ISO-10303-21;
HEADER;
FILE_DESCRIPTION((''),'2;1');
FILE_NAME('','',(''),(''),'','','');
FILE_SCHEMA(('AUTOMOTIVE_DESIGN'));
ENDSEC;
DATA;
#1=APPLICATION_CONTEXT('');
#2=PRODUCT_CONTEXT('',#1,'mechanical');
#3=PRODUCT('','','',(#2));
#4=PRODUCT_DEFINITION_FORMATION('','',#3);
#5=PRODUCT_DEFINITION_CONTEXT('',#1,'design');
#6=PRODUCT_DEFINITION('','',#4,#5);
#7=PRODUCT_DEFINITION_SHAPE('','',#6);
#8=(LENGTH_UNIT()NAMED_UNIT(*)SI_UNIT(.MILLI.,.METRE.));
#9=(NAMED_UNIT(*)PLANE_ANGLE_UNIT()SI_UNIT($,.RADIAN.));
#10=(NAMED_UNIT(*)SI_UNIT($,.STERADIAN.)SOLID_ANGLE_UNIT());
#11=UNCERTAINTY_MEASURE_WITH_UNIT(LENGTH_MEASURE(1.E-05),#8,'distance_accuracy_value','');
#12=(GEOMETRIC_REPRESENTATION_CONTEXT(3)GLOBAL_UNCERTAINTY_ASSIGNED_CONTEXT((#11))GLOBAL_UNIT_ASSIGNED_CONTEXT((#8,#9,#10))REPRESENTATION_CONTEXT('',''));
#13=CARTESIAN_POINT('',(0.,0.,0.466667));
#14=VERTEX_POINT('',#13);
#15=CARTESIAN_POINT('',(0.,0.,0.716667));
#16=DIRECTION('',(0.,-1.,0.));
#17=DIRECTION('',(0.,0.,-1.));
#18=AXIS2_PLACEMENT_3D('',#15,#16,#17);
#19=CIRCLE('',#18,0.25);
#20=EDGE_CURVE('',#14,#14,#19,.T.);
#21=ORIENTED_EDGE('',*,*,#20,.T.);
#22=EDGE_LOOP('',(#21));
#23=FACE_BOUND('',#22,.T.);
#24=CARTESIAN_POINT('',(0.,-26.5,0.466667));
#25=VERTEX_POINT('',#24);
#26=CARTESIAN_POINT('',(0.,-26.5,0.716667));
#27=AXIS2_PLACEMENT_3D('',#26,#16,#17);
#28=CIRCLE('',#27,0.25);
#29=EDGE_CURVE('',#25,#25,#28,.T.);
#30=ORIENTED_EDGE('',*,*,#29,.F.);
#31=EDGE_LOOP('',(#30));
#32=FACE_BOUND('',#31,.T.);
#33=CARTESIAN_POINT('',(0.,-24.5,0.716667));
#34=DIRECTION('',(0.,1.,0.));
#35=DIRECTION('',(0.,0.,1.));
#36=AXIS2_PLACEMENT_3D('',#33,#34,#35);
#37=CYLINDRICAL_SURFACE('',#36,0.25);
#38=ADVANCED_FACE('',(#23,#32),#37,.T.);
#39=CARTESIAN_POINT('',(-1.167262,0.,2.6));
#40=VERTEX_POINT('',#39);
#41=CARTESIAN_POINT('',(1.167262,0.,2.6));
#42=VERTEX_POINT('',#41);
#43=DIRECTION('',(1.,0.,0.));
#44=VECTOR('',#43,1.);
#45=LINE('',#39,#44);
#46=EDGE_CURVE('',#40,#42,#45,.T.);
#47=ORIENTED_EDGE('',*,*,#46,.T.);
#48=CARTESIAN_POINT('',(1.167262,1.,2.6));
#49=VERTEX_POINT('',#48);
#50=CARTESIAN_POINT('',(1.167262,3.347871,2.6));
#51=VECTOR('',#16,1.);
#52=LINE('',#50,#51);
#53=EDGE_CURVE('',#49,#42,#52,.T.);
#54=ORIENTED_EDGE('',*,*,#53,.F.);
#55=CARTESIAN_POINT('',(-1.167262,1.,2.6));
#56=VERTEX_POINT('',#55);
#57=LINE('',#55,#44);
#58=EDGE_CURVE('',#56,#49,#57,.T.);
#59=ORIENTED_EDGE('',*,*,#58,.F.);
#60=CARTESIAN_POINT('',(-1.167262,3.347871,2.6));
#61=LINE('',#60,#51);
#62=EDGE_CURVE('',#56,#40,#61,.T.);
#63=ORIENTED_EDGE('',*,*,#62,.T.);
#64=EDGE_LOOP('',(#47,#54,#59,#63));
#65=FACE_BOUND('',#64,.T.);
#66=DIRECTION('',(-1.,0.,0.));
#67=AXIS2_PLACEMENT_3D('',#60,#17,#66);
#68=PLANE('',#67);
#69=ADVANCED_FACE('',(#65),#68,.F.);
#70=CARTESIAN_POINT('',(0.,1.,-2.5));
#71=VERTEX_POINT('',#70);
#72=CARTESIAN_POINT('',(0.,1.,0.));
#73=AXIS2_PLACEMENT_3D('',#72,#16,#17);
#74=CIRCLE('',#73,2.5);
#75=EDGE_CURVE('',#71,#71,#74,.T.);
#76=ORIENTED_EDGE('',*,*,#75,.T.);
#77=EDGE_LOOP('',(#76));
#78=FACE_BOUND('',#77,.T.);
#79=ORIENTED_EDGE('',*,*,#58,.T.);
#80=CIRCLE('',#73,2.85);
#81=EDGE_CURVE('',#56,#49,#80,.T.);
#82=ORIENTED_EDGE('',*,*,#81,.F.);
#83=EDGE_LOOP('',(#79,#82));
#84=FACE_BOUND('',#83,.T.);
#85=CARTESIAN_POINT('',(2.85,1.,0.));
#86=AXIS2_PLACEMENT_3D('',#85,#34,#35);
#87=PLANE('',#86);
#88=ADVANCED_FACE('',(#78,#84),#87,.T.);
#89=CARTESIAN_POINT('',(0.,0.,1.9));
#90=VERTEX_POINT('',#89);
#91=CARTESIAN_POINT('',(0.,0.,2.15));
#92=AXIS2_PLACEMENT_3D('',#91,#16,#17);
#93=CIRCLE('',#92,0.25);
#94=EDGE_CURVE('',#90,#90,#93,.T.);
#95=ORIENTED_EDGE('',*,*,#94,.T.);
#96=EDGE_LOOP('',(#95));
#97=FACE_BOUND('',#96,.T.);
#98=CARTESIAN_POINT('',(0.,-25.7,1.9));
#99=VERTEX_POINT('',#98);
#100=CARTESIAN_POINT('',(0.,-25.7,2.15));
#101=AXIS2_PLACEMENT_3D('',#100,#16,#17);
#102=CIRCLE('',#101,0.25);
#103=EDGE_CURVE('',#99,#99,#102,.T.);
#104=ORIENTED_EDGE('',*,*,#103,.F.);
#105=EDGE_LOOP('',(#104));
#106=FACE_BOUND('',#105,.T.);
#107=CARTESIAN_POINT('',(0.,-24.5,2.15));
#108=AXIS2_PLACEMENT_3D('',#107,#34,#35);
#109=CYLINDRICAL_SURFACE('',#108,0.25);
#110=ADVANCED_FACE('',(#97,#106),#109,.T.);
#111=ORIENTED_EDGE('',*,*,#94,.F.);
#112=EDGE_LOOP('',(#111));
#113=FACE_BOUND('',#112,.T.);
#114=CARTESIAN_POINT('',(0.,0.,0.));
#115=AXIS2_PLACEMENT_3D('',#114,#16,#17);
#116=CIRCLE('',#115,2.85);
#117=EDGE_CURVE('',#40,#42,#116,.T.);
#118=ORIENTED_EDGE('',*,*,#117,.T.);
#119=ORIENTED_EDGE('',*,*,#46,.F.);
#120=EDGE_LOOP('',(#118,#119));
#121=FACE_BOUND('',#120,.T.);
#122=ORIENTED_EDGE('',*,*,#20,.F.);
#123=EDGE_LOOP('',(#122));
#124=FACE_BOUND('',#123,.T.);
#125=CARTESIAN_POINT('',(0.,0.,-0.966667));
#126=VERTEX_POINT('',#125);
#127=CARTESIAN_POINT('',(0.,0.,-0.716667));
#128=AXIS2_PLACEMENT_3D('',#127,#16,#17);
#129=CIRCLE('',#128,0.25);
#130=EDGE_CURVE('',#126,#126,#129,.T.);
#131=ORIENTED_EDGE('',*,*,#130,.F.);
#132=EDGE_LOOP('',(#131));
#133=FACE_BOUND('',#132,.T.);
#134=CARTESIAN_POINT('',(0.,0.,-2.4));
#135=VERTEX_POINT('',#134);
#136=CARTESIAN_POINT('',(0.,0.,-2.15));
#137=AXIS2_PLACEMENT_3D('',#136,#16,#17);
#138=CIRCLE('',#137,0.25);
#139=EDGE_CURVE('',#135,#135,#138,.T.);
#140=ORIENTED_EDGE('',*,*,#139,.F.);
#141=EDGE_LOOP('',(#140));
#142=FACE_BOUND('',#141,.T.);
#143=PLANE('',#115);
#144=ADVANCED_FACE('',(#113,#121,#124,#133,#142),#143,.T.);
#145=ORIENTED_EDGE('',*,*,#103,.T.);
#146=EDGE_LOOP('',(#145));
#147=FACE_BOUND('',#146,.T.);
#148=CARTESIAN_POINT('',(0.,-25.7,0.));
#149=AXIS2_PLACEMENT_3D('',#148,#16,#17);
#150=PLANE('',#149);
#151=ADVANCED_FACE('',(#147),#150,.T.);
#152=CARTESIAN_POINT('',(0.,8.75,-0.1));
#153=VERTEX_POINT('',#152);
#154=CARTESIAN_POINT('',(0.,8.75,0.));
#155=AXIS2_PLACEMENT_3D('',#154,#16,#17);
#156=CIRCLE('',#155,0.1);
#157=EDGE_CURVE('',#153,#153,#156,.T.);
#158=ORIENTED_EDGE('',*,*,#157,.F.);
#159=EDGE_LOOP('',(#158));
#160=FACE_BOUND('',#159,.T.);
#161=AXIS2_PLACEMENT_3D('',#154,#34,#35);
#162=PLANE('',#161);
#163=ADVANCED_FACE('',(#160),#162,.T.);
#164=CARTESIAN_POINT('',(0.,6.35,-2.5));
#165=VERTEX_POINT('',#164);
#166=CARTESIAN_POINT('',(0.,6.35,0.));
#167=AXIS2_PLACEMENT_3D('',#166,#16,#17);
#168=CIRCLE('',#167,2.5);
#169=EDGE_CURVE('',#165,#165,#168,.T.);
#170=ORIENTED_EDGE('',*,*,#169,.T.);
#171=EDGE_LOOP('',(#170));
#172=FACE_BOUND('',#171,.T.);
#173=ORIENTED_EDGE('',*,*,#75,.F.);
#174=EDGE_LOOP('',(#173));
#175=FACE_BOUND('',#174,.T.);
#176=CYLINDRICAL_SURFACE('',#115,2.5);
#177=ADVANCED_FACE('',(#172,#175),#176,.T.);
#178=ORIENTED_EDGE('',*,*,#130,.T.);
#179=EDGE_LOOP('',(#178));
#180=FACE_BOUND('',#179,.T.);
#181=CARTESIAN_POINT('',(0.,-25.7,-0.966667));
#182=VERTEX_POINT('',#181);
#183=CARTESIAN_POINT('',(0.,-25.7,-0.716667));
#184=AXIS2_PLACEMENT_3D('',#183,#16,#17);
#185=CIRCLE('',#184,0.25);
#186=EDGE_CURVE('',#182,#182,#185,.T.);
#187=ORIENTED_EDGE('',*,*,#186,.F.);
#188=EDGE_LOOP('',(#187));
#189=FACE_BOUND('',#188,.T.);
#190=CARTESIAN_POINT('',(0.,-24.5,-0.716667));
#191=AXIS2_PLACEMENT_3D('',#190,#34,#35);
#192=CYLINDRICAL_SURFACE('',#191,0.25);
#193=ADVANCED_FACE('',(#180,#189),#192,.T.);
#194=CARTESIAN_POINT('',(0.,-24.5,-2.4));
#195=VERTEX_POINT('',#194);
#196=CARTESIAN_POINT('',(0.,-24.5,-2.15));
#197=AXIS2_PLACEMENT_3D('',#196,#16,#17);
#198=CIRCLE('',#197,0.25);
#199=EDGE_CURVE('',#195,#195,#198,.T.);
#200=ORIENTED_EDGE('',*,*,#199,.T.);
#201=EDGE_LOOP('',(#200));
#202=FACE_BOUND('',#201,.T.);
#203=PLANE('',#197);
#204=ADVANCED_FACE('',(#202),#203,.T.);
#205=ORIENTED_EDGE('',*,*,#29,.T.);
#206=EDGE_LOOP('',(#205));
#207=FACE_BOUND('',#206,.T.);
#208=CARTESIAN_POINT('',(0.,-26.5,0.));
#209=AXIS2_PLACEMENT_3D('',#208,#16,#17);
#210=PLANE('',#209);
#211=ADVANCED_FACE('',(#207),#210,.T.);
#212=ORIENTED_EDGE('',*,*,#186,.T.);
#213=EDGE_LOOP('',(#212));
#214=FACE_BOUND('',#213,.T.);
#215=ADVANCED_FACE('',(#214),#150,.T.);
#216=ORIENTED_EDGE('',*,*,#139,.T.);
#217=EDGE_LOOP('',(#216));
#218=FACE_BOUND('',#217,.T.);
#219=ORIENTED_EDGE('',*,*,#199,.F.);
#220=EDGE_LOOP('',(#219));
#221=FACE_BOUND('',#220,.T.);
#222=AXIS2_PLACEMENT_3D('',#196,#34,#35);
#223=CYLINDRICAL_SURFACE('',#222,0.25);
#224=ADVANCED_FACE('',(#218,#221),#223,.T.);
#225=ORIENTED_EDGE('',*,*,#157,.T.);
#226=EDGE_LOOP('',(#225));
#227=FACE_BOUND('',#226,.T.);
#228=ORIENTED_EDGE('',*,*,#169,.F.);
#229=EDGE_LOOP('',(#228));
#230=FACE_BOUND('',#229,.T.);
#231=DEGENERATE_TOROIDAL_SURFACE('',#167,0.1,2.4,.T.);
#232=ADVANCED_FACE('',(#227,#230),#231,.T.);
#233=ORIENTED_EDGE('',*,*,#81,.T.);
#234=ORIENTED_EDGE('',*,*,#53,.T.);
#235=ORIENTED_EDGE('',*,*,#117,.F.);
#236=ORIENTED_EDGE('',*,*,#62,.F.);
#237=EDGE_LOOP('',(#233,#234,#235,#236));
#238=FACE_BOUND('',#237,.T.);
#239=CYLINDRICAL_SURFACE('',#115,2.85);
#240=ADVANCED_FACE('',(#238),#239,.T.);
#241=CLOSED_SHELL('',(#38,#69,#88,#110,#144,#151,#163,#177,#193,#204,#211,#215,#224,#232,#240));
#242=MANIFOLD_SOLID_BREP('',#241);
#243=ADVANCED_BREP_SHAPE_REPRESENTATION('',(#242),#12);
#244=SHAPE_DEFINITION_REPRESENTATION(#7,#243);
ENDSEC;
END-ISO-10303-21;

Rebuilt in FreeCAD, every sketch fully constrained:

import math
import FreeCAD as App
import Part
import Sketcher

doc = App.newDocument("Part")
body = doc.addObject("PartDesign::Body", "Body")

sketch1 = body.newObject("Sketcher::SketchObject", "Sketch")
sketch1.AttachmentSupport = (doc.getObject("XY_Plane"), [""])
sketch1.MapMode = "FlatFace"
sketch1.addGeometry([
    Part.LineSegment(App.Vector(0, 8.75, 0), App.Vector(0, 0, 0)),
    Part.LineSegment(App.Vector(0, 0, 0), App.Vector(2.85, 0, 0)),
    Part.LineSegment(App.Vector(2.85, 0, 0), App.Vector(2.85, 1, 0)),
    Part.LineSegment(App.Vector(2.85, 1, 0), App.Vector(2.5, 1, 0)),
    Part.LineSegment(App.Vector(2.5, 1, 0), App.Vector(2.5, 6.35, 0)),
    Part.ArcOfCircle(Part.Circle(App.Vector(0.1, 6.35, 0), App.Vector(0, 0, 1), 2.4), math.radians(0), math.radians(90)),
    Part.LineSegment(App.Vector(0.1, 8.75, 0), App.Vector(0, 8.75, 0)),
], False)
sketch1.addConstraint([
    Sketcher.Constraint("Coincident", 0, 2, 1, 1),
    Sketcher.Constraint("Coincident", 1, 2, 2, 1),
    Sketcher.Constraint("Coincident", 2, 2, 3, 1),
    Sketcher.Constraint("Coincident", 3, 2, 4, 1),
    Sketcher.Constraint("Tangent", 4, 2, 5, 1),
    Sketcher.Constraint("Tangent", 5, 2, 6, 1),
    Sketcher.Constraint("Coincident", 6, 2, 0, 1),
    Sketcher.Constraint("Vertical", 0),
    Sketcher.Constraint("Horizontal", 1),
    Sketcher.Constraint("Vertical", 2),
    Sketcher.Constraint("Horizontal", 3),
    Sketcher.Constraint("Vertical", 4),
    Sketcher.Constraint("Horizontal", 6),
    Sketcher.Constraint("Coincident", 0, 2, -1, 1),
    Sketcher.Constraint("Radius", 5, 2.4),
    Sketcher.Constraint("DistanceY", 2, 1, 2, 2, 1.0),
    Sketcher.Constraint("DistanceX", 6, 2, 6, 1, 0.1),
    Sketcher.Constraint("DistanceX", 1, 1, 1, 2, 2.85),
    Sketcher.Constraint("DistanceY", 0, 2, 0, 1, 8.75),
])
revolution = body.newObject("PartDesign::Revolution", "Revolution")
revolution.Profile = sketch1
revolution.ReferenceAxis = (sketch1, ["V_Axis"])
revolution.Angle = 360

sketch2 = body.newObject("Sketcher::SketchObject", "Sketch001")
sketch2.AttachmentSupport = (doc.getObject("XZ_Plane"), [""])
sketch2.MapMode = "FlatFace"
sketch2.addGeometry([
    Part.LineSegment(App.Vector(-1.167262, 2.6, 0), App.Vector(1.167262, 2.6, 0)),
    Part.ArcOfCircle(Part.Circle(App.Vector(0, 0, 0), App.Vector(0, 0, 1), 2.85), math.radians(65.822455), math.radians(114.177545)),
], False)
sketch2.addConstraint([
    Sketcher.Constraint("Coincident", 0, 1, 1, 2),
    Sketcher.Constraint("Coincident", 1, 1, 0, 2),
    Sketcher.Constraint("Horizontal", 0),
    Sketcher.Constraint("Coincident", 1, 3, -1, 1),
    Sketcher.Constraint("Radius", 1, 2.85),
    Sketcher.Constraint("DistanceY", -1, 1, 0, 1, 2.6),
])
pocket1 = body.newObject("PartDesign::Pocket", "Pocket")
pocket1.Profile = sketch2
pocket1.Length = 1

sketch3 = body.newObject("Sketcher::SketchObject", "Sketch002")
sketch3.AttachmentSupport = (doc.getObject("XZ_Plane"), [""])
sketch3.MapMode = "FlatFace"
sketch3.addGeometry([
    Part.Circle(App.Vector(0, -2.15, 0), App.Vector(0, 0, 1), 0.25),
    Part.Circle(App.Vector(0, 2.15, 0), App.Vector(0, 0, 1), 0.25),
    Part.Circle(App.Vector(0, -0.716667, 0), App.Vector(0, 0, 1), 0.25),
    Part.Circle(App.Vector(0, 0.716667, 0), App.Vector(0, 0, 1), 0.25),
], False)
sketch3.addConstraint([
    Sketcher.Constraint("Equal", 0, 1),
    Sketcher.Constraint("Equal", 1, 2),
    Sketcher.Constraint("Equal", 2, 3),
    Sketcher.Constraint("Symmetric", 0, 3, 1, 3, -1, 1),
    Sketcher.Constraint("Symmetric", 2, 3, 3, 3, -1, 1),
    Sketcher.Constraint("PointOnObject", 0, 3, -2),
    Sketcher.Constraint("PointOnObject", 2, 3, -2),
    Sketcher.Constraint("Diameter", 0, 0.5),
    Sketcher.Constraint("DistanceY", 0, 3, 1, 3, 4.3),
    Sketcher.Constraint("DistanceY", 2, 3, -1, 1, 0.716667),
])
pad1 = body.newObject("PartDesign::Pad", "Pad")
pad1.Profile = sketch3
pad1.Length = 24.5

sketch4 = body.newObject("Sketcher::SketchObject", "Sketch003")
sketch4.AttachmentSupport = (doc.getObject("XZ_Plane"), [""])
sketch4.MapMode = "FlatFace"
sketch4.AttachmentOffset = App.Placement(App.Vector(0, 0, 24.5), App.Rotation())
sketch4.addGeometry([
    Part.Circle(App.Vector(0, 2.15, 0), App.Vector(0, 0, 1), 0.25),
    Part.Circle(App.Vector(0, -0.716667, 0), App.Vector(0, 0, 1), 0.25),
], False)
sketch4.addConstraint([
    Sketcher.Constraint("Equal", 0, 1),
    Sketcher.Constraint("PointOnObject", 0, 3, -2),
    Sketcher.Constraint("PointOnObject", 1, 3, -2),
    Sketcher.Constraint("Diameter", 0, 0.5),
    Sketcher.Constraint("DistanceY", -1, 1, 0, 3, 2.15),
    Sketcher.Constraint("DistanceY", 1, 3, -1, 1, 0.716667),
])
pad2 = body.newObject("PartDesign::Pad", "Pad001")
pad2.Profile = sketch4
pad2.Length = 1.2

sketch5 = body.newObject("Sketcher::SketchObject", "Sketch004")
sketch5.AttachmentSupport = (doc.getObject("XZ_Plane"), [""])
sketch5.MapMode = "FlatFace"
sketch5.AttachmentOffset = App.Placement(App.Vector(0, 0, 24.5), App.Rotation())
sketch5.addGeometry(Part.Circle(App.Vector(0, 0.716667, 0), App.Vector(0, 0, 1), 0.25), False)
sketch5.addConstraint([
    Sketcher.Constraint("PointOnObject", 0, 3, -2),
    Sketcher.Constraint("Diameter", 0, 0.5),
    Sketcher.Constraint("DistanceY", -1, 1, 0, 3, 0.716667),
])
pad3 = body.newObject("PartDesign::Pad", "Pad002")
pad3.Profile = sketch5
pad3.Length = 2

doc.recompute()
